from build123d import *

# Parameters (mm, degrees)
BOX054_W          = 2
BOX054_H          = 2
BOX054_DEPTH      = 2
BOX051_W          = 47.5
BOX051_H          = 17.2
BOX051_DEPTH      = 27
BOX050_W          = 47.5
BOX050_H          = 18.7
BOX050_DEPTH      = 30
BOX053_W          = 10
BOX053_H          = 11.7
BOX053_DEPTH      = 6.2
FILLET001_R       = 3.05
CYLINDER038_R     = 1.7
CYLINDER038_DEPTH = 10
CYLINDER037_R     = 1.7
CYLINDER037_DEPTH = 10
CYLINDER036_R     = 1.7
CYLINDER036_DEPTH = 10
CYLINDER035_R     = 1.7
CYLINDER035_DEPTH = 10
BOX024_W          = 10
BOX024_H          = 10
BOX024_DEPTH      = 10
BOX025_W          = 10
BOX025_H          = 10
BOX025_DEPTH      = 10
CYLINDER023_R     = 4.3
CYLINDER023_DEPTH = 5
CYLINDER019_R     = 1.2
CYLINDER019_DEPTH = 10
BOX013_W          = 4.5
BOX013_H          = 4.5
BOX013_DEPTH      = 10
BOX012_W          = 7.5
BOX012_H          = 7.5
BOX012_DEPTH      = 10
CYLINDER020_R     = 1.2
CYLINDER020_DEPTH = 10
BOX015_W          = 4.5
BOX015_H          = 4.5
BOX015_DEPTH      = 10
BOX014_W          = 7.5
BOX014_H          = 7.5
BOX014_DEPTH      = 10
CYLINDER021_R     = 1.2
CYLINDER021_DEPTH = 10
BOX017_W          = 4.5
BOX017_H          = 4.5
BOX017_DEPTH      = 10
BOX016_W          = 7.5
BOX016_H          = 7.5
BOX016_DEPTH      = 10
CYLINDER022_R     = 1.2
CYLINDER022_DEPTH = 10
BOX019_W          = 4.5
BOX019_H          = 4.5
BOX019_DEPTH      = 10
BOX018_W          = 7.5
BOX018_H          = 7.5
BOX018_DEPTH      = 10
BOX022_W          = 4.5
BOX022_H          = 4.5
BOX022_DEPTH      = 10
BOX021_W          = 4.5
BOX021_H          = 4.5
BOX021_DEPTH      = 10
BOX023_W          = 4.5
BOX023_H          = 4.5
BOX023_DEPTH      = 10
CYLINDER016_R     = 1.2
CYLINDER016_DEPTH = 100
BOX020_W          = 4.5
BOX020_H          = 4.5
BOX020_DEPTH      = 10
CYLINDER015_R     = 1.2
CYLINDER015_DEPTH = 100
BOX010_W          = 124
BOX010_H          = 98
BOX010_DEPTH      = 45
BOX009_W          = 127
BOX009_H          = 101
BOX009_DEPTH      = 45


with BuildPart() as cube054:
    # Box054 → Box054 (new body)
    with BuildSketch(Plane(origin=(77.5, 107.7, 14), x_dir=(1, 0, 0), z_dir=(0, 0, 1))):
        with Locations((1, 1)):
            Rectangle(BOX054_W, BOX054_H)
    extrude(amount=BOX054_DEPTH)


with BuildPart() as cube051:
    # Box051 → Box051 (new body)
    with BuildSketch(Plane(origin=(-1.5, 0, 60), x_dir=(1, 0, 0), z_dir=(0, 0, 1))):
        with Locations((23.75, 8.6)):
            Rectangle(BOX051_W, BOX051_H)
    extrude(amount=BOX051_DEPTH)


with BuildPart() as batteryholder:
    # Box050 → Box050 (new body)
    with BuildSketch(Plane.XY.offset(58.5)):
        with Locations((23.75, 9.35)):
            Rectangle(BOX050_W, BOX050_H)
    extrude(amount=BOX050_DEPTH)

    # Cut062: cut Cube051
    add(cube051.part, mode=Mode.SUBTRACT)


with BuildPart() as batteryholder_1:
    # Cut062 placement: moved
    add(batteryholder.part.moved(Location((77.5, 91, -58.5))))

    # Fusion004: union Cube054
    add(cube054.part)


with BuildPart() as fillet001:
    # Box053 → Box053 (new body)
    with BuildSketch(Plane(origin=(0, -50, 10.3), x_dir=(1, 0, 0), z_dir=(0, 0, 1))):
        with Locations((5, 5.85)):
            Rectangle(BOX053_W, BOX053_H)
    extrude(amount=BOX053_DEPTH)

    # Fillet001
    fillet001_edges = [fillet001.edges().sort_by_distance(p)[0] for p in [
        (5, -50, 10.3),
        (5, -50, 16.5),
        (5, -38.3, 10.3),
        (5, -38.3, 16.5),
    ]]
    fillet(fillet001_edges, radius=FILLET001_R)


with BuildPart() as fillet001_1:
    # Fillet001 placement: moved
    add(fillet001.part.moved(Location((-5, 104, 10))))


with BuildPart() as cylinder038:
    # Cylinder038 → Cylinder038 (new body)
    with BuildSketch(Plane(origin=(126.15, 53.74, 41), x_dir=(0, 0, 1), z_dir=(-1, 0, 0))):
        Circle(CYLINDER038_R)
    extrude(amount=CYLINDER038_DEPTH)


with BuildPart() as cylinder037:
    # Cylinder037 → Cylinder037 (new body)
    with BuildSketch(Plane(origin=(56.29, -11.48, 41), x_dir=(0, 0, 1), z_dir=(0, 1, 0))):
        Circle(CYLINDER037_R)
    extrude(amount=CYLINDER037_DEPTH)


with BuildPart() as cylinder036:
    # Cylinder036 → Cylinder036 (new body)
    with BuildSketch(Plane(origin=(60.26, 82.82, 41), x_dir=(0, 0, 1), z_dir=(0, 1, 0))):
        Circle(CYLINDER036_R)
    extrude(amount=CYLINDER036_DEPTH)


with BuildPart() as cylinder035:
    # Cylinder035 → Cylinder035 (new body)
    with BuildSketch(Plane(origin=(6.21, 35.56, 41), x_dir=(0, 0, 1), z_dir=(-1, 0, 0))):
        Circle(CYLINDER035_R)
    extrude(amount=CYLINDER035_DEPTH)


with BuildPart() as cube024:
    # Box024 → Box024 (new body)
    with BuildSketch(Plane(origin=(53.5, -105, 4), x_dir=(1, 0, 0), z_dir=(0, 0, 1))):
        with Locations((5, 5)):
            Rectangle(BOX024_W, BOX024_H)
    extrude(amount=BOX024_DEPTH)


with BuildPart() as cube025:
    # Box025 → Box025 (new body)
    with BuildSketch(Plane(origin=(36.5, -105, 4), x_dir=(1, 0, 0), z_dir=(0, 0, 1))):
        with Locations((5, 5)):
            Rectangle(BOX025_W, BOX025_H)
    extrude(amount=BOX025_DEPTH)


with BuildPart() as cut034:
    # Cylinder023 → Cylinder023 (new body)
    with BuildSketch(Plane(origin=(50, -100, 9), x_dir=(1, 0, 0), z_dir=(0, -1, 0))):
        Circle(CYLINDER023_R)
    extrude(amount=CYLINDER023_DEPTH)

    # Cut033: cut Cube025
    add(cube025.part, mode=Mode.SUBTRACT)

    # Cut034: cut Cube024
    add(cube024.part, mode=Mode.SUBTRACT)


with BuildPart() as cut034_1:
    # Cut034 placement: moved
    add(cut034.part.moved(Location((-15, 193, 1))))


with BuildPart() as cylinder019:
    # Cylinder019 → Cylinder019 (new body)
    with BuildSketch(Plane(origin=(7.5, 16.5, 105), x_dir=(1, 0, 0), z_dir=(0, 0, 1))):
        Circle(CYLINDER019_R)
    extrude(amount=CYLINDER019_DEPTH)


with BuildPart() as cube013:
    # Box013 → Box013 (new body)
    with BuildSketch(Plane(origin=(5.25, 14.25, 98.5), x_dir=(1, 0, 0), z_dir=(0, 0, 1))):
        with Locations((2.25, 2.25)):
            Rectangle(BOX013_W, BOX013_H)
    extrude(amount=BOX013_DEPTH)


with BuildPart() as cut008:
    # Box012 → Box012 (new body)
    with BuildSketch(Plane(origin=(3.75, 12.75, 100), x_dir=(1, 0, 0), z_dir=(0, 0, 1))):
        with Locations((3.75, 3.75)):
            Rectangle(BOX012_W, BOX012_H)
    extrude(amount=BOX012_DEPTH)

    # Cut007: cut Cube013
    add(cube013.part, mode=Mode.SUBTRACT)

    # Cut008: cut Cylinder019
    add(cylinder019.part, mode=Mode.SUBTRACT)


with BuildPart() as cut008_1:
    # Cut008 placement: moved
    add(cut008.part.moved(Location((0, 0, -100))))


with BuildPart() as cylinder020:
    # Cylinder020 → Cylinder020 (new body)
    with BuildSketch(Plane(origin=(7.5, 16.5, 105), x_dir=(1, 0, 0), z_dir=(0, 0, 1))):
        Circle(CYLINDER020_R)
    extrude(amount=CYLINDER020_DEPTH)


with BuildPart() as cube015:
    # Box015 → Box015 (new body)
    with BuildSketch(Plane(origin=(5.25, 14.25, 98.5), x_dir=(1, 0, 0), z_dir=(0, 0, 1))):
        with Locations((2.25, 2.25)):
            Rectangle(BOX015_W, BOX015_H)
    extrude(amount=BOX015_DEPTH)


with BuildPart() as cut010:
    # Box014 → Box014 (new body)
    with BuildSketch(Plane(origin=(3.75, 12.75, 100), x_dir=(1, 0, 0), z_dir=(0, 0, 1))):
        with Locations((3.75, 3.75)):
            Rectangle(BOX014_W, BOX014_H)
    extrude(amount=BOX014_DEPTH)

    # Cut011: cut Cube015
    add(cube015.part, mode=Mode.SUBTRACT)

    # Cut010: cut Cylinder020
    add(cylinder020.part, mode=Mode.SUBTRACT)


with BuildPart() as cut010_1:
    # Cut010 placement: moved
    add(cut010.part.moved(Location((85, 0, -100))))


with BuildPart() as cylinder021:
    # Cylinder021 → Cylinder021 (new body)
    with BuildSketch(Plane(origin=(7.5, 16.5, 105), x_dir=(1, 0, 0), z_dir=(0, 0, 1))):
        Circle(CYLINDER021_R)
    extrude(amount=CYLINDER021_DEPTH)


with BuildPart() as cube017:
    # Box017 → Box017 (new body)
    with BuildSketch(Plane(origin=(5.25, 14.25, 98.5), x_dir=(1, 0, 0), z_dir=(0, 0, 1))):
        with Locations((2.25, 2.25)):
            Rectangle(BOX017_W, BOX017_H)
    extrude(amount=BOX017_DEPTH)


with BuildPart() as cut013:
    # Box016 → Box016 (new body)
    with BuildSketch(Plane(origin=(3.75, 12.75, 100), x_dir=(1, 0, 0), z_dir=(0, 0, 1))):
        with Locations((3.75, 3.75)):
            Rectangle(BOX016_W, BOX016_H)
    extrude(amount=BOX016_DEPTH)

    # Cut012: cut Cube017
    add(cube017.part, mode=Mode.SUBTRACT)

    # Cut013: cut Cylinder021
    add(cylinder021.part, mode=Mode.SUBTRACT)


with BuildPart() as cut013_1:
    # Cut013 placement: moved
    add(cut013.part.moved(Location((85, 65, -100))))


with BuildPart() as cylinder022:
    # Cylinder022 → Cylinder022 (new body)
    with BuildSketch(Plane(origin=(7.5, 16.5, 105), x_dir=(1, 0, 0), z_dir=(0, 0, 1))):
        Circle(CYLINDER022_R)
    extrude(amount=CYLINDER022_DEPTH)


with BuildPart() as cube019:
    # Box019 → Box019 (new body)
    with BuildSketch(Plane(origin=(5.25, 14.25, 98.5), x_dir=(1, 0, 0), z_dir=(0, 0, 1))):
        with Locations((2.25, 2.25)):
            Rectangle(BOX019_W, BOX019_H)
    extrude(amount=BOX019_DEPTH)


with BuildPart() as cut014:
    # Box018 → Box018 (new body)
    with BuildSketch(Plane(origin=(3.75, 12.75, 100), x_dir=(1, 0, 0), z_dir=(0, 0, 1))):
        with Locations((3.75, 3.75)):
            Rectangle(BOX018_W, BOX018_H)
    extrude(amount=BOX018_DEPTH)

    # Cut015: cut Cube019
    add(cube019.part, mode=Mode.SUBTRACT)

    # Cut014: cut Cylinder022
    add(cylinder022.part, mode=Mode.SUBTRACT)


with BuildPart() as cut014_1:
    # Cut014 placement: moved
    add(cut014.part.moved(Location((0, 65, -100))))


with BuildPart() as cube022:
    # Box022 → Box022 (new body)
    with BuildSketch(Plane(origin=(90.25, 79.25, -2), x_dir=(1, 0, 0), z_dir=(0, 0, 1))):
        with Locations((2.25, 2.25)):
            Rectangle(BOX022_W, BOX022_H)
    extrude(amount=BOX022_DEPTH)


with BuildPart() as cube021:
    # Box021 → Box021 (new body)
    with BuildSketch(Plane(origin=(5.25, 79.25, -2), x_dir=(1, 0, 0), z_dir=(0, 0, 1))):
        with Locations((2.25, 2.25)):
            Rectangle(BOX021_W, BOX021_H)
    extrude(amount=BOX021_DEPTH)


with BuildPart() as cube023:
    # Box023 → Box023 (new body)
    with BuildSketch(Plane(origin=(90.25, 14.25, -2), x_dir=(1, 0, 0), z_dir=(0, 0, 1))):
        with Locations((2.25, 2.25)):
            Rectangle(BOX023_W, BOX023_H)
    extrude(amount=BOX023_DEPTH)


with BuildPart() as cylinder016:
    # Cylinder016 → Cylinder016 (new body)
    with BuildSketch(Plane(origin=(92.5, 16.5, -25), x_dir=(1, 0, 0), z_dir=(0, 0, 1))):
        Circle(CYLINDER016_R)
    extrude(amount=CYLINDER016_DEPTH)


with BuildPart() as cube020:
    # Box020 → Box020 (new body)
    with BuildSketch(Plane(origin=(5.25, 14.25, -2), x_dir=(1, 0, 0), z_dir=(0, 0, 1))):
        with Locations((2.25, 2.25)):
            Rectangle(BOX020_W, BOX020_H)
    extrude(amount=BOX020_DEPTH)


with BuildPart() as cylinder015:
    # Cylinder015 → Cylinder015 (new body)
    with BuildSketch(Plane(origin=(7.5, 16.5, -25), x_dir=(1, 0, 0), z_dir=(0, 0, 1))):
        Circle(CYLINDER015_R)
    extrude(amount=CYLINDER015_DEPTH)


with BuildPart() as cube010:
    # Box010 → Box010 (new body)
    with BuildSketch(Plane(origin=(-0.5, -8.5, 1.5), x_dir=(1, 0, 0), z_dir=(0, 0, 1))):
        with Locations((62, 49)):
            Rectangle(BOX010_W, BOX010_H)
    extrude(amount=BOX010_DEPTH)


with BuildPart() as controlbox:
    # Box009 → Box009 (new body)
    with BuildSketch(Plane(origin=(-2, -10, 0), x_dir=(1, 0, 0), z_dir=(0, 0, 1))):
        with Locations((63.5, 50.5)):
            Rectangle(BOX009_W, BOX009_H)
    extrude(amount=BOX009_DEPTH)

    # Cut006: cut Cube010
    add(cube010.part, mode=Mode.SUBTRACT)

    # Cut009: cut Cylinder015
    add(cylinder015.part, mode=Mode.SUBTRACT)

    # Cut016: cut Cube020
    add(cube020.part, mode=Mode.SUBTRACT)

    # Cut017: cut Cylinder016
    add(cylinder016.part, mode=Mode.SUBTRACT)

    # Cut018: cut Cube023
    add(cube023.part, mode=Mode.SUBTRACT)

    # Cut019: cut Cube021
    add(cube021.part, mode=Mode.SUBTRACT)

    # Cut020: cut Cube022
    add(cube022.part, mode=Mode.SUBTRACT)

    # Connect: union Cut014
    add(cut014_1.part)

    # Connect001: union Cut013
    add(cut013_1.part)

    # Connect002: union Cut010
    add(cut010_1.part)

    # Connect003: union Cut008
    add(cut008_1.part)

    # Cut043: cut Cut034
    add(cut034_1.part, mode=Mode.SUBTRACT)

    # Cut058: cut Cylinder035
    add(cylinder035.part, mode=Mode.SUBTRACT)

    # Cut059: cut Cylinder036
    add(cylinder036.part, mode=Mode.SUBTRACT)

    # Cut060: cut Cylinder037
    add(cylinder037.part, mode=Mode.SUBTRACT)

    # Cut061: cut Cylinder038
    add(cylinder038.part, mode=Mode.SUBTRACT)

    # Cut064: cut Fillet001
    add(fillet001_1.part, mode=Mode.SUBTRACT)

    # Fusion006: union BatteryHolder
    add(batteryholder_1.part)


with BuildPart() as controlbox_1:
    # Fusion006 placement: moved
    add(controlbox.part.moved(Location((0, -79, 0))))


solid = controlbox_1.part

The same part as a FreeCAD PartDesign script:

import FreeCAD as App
import Part
import Sketcher

V = App.Vector
Q = App.Units.Quantity


def edges_at(feature, points):
    """Names of the edges that pass closest to the given points."""
    edges = feature.Shape.Edges
    near = lambda p: min(range(len(edges)), key=lambda i: edges[i].distToShape(Part.Vertex(*p))[0])
    return sorted({f"Edge{near(p) + 1}" for p in points})

doc = App.newDocument("Part")
body = doc.addObject("PartDesign::Body", "Body")

# Sketch on XY plane
sketch1 = body.newObject("Sketcher::SketchObject", "Sketch")
sketch1.AttachmentSupport = (doc.getObject("XY_Plane"), [""])
sketch1.MapMode = "FlatFace"
sketch1.AttachmentOffset = App.Placement(V(0, 0, 14), App.Rotation())
sketch1.addGeometry([
    Part.LineSegment(V(77.5, 109.7, 0), V(77.5, 107.7, 0)),
    Part.LineSegment(V(77.5, 107.7, 0), V(79.5, 107.7, 0)),
    Part.LineSegment(V(79.5, 107.7, 0), V(79.5, 109.7, 0)),
    Part.LineSegment(V(79.5, 109.7, 0), V(77.5, 109.7, 0)),
], False)
sketch1.addConstraint([
    Sketcher.Constraint("Coincident", 0, 2, 1, 1),
    Sketcher.Constraint("Coincident", 1, 2, 2, 1),
    Sketcher.Constraint("Coincident", 2, 2, 3, 1),
    Sketcher.Constraint("Coincident", 3, 2, 0, 1),
    Sketcher.Constraint("Vertical", 0),
    Sketcher.Constraint("Horizontal", 1),
    Sketcher.Constraint("Vertical", 2),
    Sketcher.Constraint("Horizontal", 3),
    Sketcher.Constraint("Equal", 3, 0),
    Sketcher.Constraint("DistanceX", 1, 1, 1, 2, Q("2 mm")),
    Sketcher.Constraint("DistanceX", -1, 1, 0, 2, Q("77.5 mm")),
    Sketcher.Constraint("DistanceY", -1, 1, 0, 2, Q("107.7 mm")),
])
pad1 = body.newObject("PartDesign::Pad", "Pad")
pad1.Profile = sketch1
pad1.Length = 2
body2 = doc.addObject("PartDesign::Body", "Body001")

# Sketch on XY plane
sketch2 = body2.newObject("Sketcher::SketchObject", "Sketch001")
sketch2.AttachmentSupport = (doc.getObject("XY_Plane001"), [""])
sketch2.MapMode = "FlatFace"
sketch2.AttachmentOffset = App.Placement(V(0, 0, 60), App.Rotation())
sketch2.addGeometry([
    Part.LineSegment(V(-1.5, 17.2, 0), V(-1.5, 0, 0)),
    Part.LineSegment(V(-1.5, 0, 0), V(46, 0, 0)),
    Part.LineSegment(V(46, 0, 0), V(46, 17.2, 0)),
    Part.LineSegment(V(46, 17.2, 0), V(-1.5, 17.2, 0)),
], False)
sketch2.addConstraint([
    Sketcher.Constraint("Coincident", 0, 2, 1, 1),
    Sketcher.Constraint("Coincident", 1, 2, 2, 1),
    Sketcher.Constraint("Coincident", 2, 2, 3, 1),
    Sketcher.Constraint("Coincident", 3, 2, 0, 1),
    Sketcher.Constraint("Vertical", 0),
    Sketcher.Constraint("Horizontal", 1),
    Sketcher.Constraint("Vertical", 2),
    Sketcher.Constraint("Horizontal", 3),
    Sketcher.Constraint("PointOnObject", 0, 2, -1),
    Sketcher.Constraint("DistanceX", 1, 1, 1, 2, Q("47.5 mm")),
    Sketcher.Constraint("DistanceY", 0, 2, 0, 1, Q("17.2 mm")),
    Sketcher.Constraint("DistanceX", -1, 1, 1, 2, Q("46 mm")),
])
pad2 = body2.newObject("PartDesign::Pad", "Pad001")
pad2.Profile = sketch2
pad2.Length = 27
body3 = doc.addObject("PartDesign::Body", "Body002")

# Sketch on XY plane
sketch3 = body3.newObject("Sketcher::SketchObject", "Sketch002")
sketch3.AttachmentSupport = (doc.getObject("XY_Plane002"), [""])
sketch3.MapMode = "FlatFace"
sketch3.AttachmentOffset = App.Placement(V(0, 0, 58.5), App.Rotation())
sketch3.addGeometry([
    Part.LineSegment(V(0, 18.7, 0), V(0, 0, 0)),
    Part.LineSegment(V(0, 0, 0), V(47.5, 0, 0)),
    Part.LineSegment(V(47.5, 0, 0), V(47.5, 18.7, 0)),
    Part.LineSegment(V(47.5, 18.7, 0), V(0, 18.7, 0)),
], False)
sketch3.addConstraint([
    Sketcher.Constraint("Coincident", 0, 2, 1, 1),
    Sketcher.Constraint("Coincident", 1, 2, 2, 1),
    Sketcher.Constraint("Coincident", 2, 2, 3, 1),
    Sketcher.Constraint("Coincident", 3, 2, 0, 1),
    Sketcher.Constraint("Vertical", 0),
    Sketcher.Constraint("Horizontal", 1),
    Sketcher.Constraint("Vertical", 2),
    Sketcher.Constraint("Horizontal", 3),
    Sketcher.Constraint("Coincident", 0, 2, -1, 1),
    Sketcher.Constraint("DistanceX", 1, 1, 1, 2, Q("47.5 mm")),
    Sketcher.Constraint("DistanceY", 0, 2, 0, 1, Q("18.7 mm")),
])
pad3 = body3.newObject("PartDesign::Pad", "Pad002")
pad3.Profile = sketch3
pad3.Length = 30
doc.recompute()

boolean = body3.newObject("PartDesign::Boolean", "Boolean")
boolean.Type = "Cut"
boolean.addObjects([body2])
body4 = doc.addObject("PartDesign::Body", "Body003")
doc.recompute()

body3.Placement = App.Placement(V(77.5, 91, -58.5), App.Rotation(V(0, 0, 1), 0))
boolean2 = body4.newObject("PartDesign::Boolean", "Boolean001")
boolean2.Type = "Fuse"
boolean2.addObjects([body3])
doc.recompute()

boolean3 = body4.newObject("PartDesign::Boolean", "Boolean002")
boolean3.Type = "Fuse"
boolean3.addObjects([body])
body5 = doc.addObject("PartDesign::Body", "Body004")

# Sketch on XY plane
sketch4 = body5.newObject("Sketcher::SketchObject", "Sketch003")
sketch4.AttachmentSupport = (doc.getObject("XY_Plane004"), [""])
sketch4.MapMode = "FlatFace"
sketch4.AttachmentOffset = App.Placement(V(0, 0, 10.3), App.Rotation())
sketch4.addGeometry([
    Part.LineSegment(V(0, -38.3, 0), V(0, -50, 0)),
    Part.LineSegment(V(0, -50, 0), V(10, -50, 0)),
    Part.LineSegment(V(10, -50, 0), V(10, -38.3, 0)),
    Part.LineSegment(V(10, -38.3, 0), V(0, -38.3, 0)),
], False)
sketch4.addConstraint([
    Sketcher.Constraint("Coincident", 0, 2, 1, 1),
    Sketcher.Constraint("Coincident", 1, 2, 2, 1),
    Sketcher.Constraint("Coincident", 2, 2, 3, 1),
    Sketcher.Constraint("Coincident", 3, 2, 0, 1),
    Sketcher.Constraint("Vertical", 0),
    Sketcher.Constraint("Horizontal", 1),
    Sketcher.Constraint("Vertical", 2),
    Sketcher.Constraint("Horizontal", 3),
    Sketcher.Constraint("PointOnObject", 0, 2, -2),
    Sketcher.Constraint("DistanceX", 1, 1, 1, 2, Q("10 mm")),
    Sketcher.Constraint("DistanceY", 0, 2, 0, 1, Q("11.7 mm")),
    Sketcher.Constraint("DistanceY", 0, 2, -1, 1, Q("50 mm")),
])
pad4 = body5.newObject("PartDesign::Pad", "Pad003")
pad4.Profile = sketch4
pad4.Length = 6.2
doc.recompute()

fillet = body5.newObject("PartDesign::Fillet", "Fillet")
fillet.Base = (pad4, edges_at(pad4, [
    (5, -50, 10.3),
    (5, -50, 16.5),
    (5, -38.3, 10.3),
    (5, -38.3, 16.5),
]))
fillet.Radius = 3.05
body6 = doc.addObject("PartDesign::Body", "Body005")
doc.recompute()

body5.Placement = App.Placement(V(-5, 104, 10), App.Rotation(V(0, 0, 1), 0))
boolean4 = body6.newObject("PartDesign::Boolean", "Boolean003")
boolean4.Type = "Fuse"
boolean4.addObjects([body5])
body7 = doc.addObject("PartDesign::Body", "Body006")

# Sketch on YZ plane
sketch5 = body7.newObject("Sketcher::SketchObject", "Sketch004")
sketch5.AttachmentSupport = (doc.getObject("YZ_Plane006"), [""])
sketch5.MapMode = "FlatFace"
sketch5.AttachmentOffset = App.Placement(V(0, 0, 126.15), App.Rotation())
sketch5.addGeometry(Part.Circle(V(53.74, 41, 0), V(0, 0, 1), 1.7), False)
sketch5.addConstraint([
    Sketcher.Constraint("Diameter", 0, Q("3.4 mm")),
    Sketcher.Constraint("DistanceY", -1, 1, 0, 3, Q("41 mm")),
    Sketcher.Constraint("DistanceX", -1, 1, 0, 3, Q("53.74 mm")),
])
pad5 = body7.newObject("PartDesign::Pad", "Pad004")
pad5.Profile = sketch5
pad5.Length = 10
pad5.Reversed = True
body8 = doc.addObject("PartDesign::Body", "Body007")

# Sketch on XZ plane
sketch6 = body8.newObject("Sketcher::SketchObject", "Sketch005")
sketch6.AttachmentSupport = (doc.getObject("XZ_Plane007"), [""])
sketch6.MapMode = "FlatFace"
sketch6.AttachmentOffset = App.Placement(V(0, 0, 11.48), App.Rotation())
sketch6.addGeometry(Part.Circle(V(56.29, 41, 0), V(0, 0, 1), 1.7), False)
sketch6.addConstraint([
    Sketcher.Constraint("Diameter", 0, Q("3.4 mm")),
    Sketcher.Constraint("DistanceY", -1, 1, 0, 3, Q("41 mm")),
    Sketcher.Constraint("DistanceX", -1, 1, 0, 3, Q("56.29 mm")),
])
pad6 = body8.newObject("PartDesign::Pad", "Pad005")
pad6.Profile = sketch6
pad6.Length = 10
pad6.Reversed = True
body9 = doc.addObject("PartDesign::Body", "Body008")

# Sketch on XZ plane
sketch7 = body9.newObject("Sketcher::SketchObject", "Sketch006")
sketch7.AttachmentSupport = (doc.getObject("XZ_Plane008"), [""])
sketch7.MapMode = "FlatFace"
sketch7.AttachmentOffset = App.Placement(V(0, 0, -82.82), App.Rotation())
sketch7.addGeometry(Part.Circle(V(60.26, 41, 0), V(0, 0, 1), 1.7), False)
sketch7.addConstraint([
    Sketcher.Constraint("Diameter", 0, Q("3.4 mm")),
    Sketcher.Constraint("DistanceY", -1, 1, 0, 3, Q("41 mm")),
    Sketcher.Constraint("DistanceX", -1, 1, 0, 3, Q("60.26 mm")),
])
pad7 = body9.newObject("PartDesign::Pad", "Pad006")
pad7.Profile = sketch7
pad7.Length = 10
pad7.Reversed = True
body10 = doc.addObject("PartDesign::Body", "Body009")

# Sketch on YZ plane
sketch8 = body10.newObject("Sketcher::SketchObject", "Sketch007")
sketch8.AttachmentSupport = (doc.getObject("YZ_Plane009"), [""])
sketch8.MapMode = "FlatFace"
sketch8.AttachmentOffset = App.Placement(V(0, 0, 6.21), App.Rotation())
sketch8.addGeometry(Part.Circle(V(35.56, 41, 0), V(0, 0, 1), 1.7), False)
sketch8.addConstraint([
    Sketcher.Constraint("Diameter", 0, Q("3.4 mm")),
    Sketcher.Constraint("DistanceY", -1, 1, 0, 3, Q("41 mm")),
    Sketcher.Constraint("DistanceX", -1, 1, 0, 3, Q("35.56 mm")),
])
pad8 = body10.newObject("PartDesign::Pad", "Pad007")
pad8.Profile = sketch8
pad8.Length = 10
pad8.Reversed = True
body11 = doc.addObject("PartDesign::Body", "Body010")

# Sketch on XY plane
sketch9 = body11.newObject("Sketcher::SketchObject", "Sketch008")
sketch9.AttachmentSupport = (doc.getObject("XY_Plane010"), [""])
sketch9.MapMode = "FlatFace"
sketch9.AttachmentOffset = App.Placement(V(0, 0, 4), App.Rotation())
sketch9.addGeometry([
    Part.LineSegment(V(53.5, -95, 0), V(53.5, -105, 0)),
    Part.LineSegment(V(53.5, -105, 0), V(63.5, -105, 0)),
    Part.LineSegment(V(63.5, -105, 0), V(63.5, -95, 0)),
    Part.LineSegment(V(63.5, -95, 0), V(53.5, -95, 0)),
], False)
sketch9.addConstraint([
    Sketcher.Constraint("Coincident", 0, 2, 1, 1),
    Sketcher.Constraint("Coincident", 1, 2, 2, 1),
    Sketcher.Constraint("Coincident", 2, 2, 3, 1),
    Sketcher.Constraint("Coincident", 3, 2, 0, 1),
    Sketcher.Constraint("Vertical", 0),
    Sketcher.Constraint("Horizontal", 1),
    Sketcher.Constraint("Vertical", 2),
    Sketcher.Constraint("Horizontal", 3),
    Sketcher.Constraint("Equal", 3, 0),
    Sketcher.Constraint("DistanceX", 1, 1, 1, 2, Q("10 mm")),
    Sketcher.Constraint("DistanceY", 0, 2, -1, 1, Q("105 mm")),
    Sketcher.Constraint("DistanceX", -1, 1, 0, 2, Q("53.5 mm")),
])
pad9 = body11.newObject("PartDesign::Pad", "Pad008")
pad9.Profile = sketch9
pad9.Length = 10
body12 = doc.addObject("PartDesign::Body", "Body011")

# Sketch on XY plane
sketch10 = body12.newObject("Sketcher::SketchObject", "Sketch009")
sketch10.AttachmentSupport = (doc.getObject("XY_Plane011"), [""])
sketch10.MapMode = "FlatFace"
sketch10.AttachmentOffset = App.Placement(V(0, 0, 4), App.Rotation())
sketch10.addGeometry([
    Part.LineSegment(V(36.5, -95, 0), V(36.5, -105, 0)),
    Part.LineSegment(V(36.5, -105, 0), V(46.5, -105, 0)),
    Part.LineSegment(V(46.5, -105, 0), V(46.5, -95, 0)),
    Part.LineSegment(V(46.5, -95, 0), V(36.5, -95, 0)),
], False)
sketch10.addConstraint([
    Sketcher.Constraint("Coincident", 0, 2, 1, 1),
    Sketcher.Constraint("Coincident", 1, 2, 2, 1),
    Sketcher.Constraint("Coincident", 2, 2, 3, 1),
    Sketcher.Constraint("Coincident", 3, 2, 0, 1),
    Sketcher.Constraint("Vertical", 0),
    Sketcher.Constraint("Horizontal", 1),
    Sketcher.Constraint("Vertical", 2),
    Sketcher.Constraint("Horizontal", 3),
    Sketcher.Constraint("Equal", 3, 0),
    Sketcher.Constraint("DistanceX", 1, 1, 1, 2, Q("10 mm")),
    Sketcher.Constraint("DistanceY", 0, 2, -1, 1, Q("105 mm")),
    Sketcher.Constraint("DistanceX", -1, 1, 0, 2, Q("36.5 mm")),
])
pad10 = body12.newObject("PartDesign::Pad", "Pad009")
pad10.Profile = sketch10
pad10.Length = 10
body13 = doc.addObject("PartDesign::Body", "Body012")

# Sketch on XZ plane
sketch11 = body13.newObject("Sketcher::SketchObject", "Sketch010")
sketch11.AttachmentSupport = (doc.getObject("XZ_Plane012"), [""])
sketch11.MapMode = "FlatFace"
sketch11.AttachmentOffset = App.Placement(V(0, 0, 100), App.Rotation())
sketch11.addGeometry(Part.Circle(V(50, 9, 0), V(0, 0, 1), 4.3), False)
sketch11.addConstraint([
    Sketcher.Constraint("Diameter", 0, Q("8.6 mm")),
    Sketcher.Constraint("DistanceX", -1, 1, 0, 3, Q("50 mm")),
    Sketcher.Constraint("DistanceY", -1, 1, 0, 3, Q("9 mm")),
])
pad11 = body13.newObject("PartDesign::Pad", "Pad010")
pad11.Profile = sketch11
pad11.Length = 5
doc.recompute()

boolean5 = body13.newObject("PartDesign::Boolean", "Boolean004")
boolean5.Type = "Cut"
boolean5.addObjects([body12])
doc.recompute()

boolean6 = body13.newObject("PartDesign::Boolean", "Boolean005")
boolean6.Type = "Cut"
boolean6.addObjects([body11])
body14 = doc.addObject("PartDesign::Body", "Body013")
doc.recompute()

body13.Placement = App.Placement(V(-15, 193, 1), App.Rotation(V(0, 0, 1), 0))
boolean7 = body14.newObject("PartDesign::Boolean", "Boolean006")
boolean7.Type = "Fuse"
boolean7.addObjects([body13])
body15 = doc.addObject("PartDesign::Body", "Body014")

# Sketch on XY plane
sketch12 = body15.newObject("Sketcher::SketchObject", "Sketch011")
sketch12.AttachmentSupport = (doc.getObject("XY_Plane014"), [""])
sketch12.MapMode = "FlatFace"
sketch12.AttachmentOffset = App.Placement(V(0, 0, 105), App.Rotation())
sketch12.addGeometry(Part.Circle(V(7.5, 16.5, 0), V(0, 0, 1), 1.2), False)
sketch12.addConstraint([
    Sketcher.Constraint("Diameter", 0, Q("2.4 mm")),
    Sketcher.Constraint("DistanceX", -1, 1, 0, 3, Q("7.5 mm")),
    Sketcher.Constraint("DistanceY", -1, 1, 0, 3, Q("16.5 mm")),
])
pad12 = body15.newObject("PartDesign::Pad", "Pad011")
pad12.Profile = sketch12
pad12.Length = 10
body16 = doc.addObject("PartDesign::Body", "Body015")

# Sketch on XY plane
sketch13 = body16.newObject("Sketcher::SketchObject", "Sketch012")
sketch13.AttachmentSupport = (doc.getObject("XY_Plane015"), [""])
sketch13.MapMode = "FlatFace"
sketch13.AttachmentOffset = App.Placement(V(0, 0, 98.5), App.Rotation())
sketch13.addGeometry([
    Part.LineSegment(V(5.25, 18.75, 0), V(5.25, 14.25, 0)),
    Part.LineSegment(V(5.25, 14.25, 0), V(9.75, 14.25, 0)),
    Part.LineSegment(V(9.75, 14.25, 0), V(9.75, 18.75, 0)),
    Part.LineSegment(V(9.75, 18.75, 0), V(5.25, 18.75, 0)),
], False)
sketch13.addConstraint([
    Sketcher.Constraint("Coincident", 0, 2, 1, 1),
    Sketcher.Constraint("Coincident", 1, 2, 2, 1),
    Sketcher.Constraint("Coincident", 2, 2, 3, 1),
    Sketcher.Constraint("Coincident", 3, 2, 0, 1),
    Sketcher.Constraint("Vertical", 0),
    Sketcher.Constraint("Horizontal", 1),
    Sketcher.Constraint("Vertical", 2),
    Sketcher.Constraint("Horizontal", 3),
    Sketcher.Constraint("Equal", 3, 0),
    Sketcher.Constraint("DistanceX", 1, 1, 1, 2, Q("4.5 mm")),
    Sketcher.Constraint("DistanceX", -1, 1, 0, 2, Q("5.25 mm")),
    Sketcher.Constraint("DistanceY", -1, 1, 0, 2, Q("14.25 mm")),
])
pad13 = body16.newObject("PartDesign::Pad", "Pad012")
pad13.Profile = sketch13
pad13.Length = 10
body17 = doc.addObject("PartDesign::Body", "Body016")

# Sketch on XY plane
sketch14 = body17.newObject("Sketcher::SketchObject", "Sketch013")
sketch14.AttachmentSupport = (doc.getObject("XY_Plane016"), [""])
sketch14.MapMode = "FlatFace"
sketch14.AttachmentOffset = App.Placement(V(0, 0, 100), App.Rotation())
sketch14.addGeometry([
    Part.LineSegment(V(3.75, 20.25, 0), V(3.75, 12.75, 0)),
    Part.LineSegment(V(3.75, 12.75, 0), V(11.25, 12.75, 0)),
    Part.LineSegment(V(11.25, 12.75, 0), V(11.25, 20.25, 0)),
    Part.LineSegment(V(11.25, 20.25, 0), V(3.75, 20.25, 0)),
], False)
sketch14.addConstraint([
    Sketcher.Constraint("Coincident", 0, 2, 1, 1),
    Sketcher.Constraint("Coincident", 1, 2, 2, 1),
    Sketcher.Constraint("Coincident", 2, 2, 3, 1),
    Sketcher.Constraint("Coincident", 3, 2, 0, 1),
    Sketcher.Constraint("Vertical", 0),
    Sketcher.Constraint("Horizontal", 1),
    Sketcher.Constraint("Vertical", 2),
    Sketcher.Constraint("Horizontal", 3),
    Sketcher.Constraint("Equal", 3, 0),
    Sketcher.Constraint("DistanceX", 1, 1, 1, 2, Q("7.5 mm")),
    Sketcher.Constraint("DistanceX", -1, 1, 0, 2, Q("3.75 mm")),
    Sketcher.Constraint("DistanceY", -1, 1, 0, 2, Q("12.75 mm")),
])
pad14 = body17.newObject("PartDesign::Pad", "Pad013")
pad14.Profile = sketch14
pad14.Length = 10
doc.recompute()

boolean8 = body17.newObject("PartDesign::Boolean", "Boolean007")
boolean8.Type = "Cut"
boolean8.addObjects([body16])
doc.recompute()

boolean9 = body17.newObject("PartDesign::Boolean", "Boolean008")
boolean9.Type = "Cut"
boolean9.addObjects([body15])
body18 = doc.addObject("PartDesign::Body", "Body017")
doc.recompute()

body17.Placement = App.Placement(V(0, 0, -100), App.Rotation(V(0, 0, 1), 0))
boolean10 = body18.newObject("PartDesign::Boolean", "Boolean009")
boolean10.Type = "Fuse"
boolean10.addObjects([body17])
body19 = doc.addObject("PartDesign::Body", "Body018")

# Sketch on XY plane
sketch15 = body19.newObject("Sketcher::SketchObject", "Sketch014")
sketch15.AttachmentSupport = (doc.getObject("XY_Plane018"), [""])
sketch15.MapMode = "FlatFace"
sketch15.AttachmentOffset = App.Placement(V(0, 0, 105), App.Rotation())
sketch15.addGeometry(Part.Circle(V(7.5, 16.5, 0), V(0, 0, 1), 1.2), False)
sketch15.addConstraint([
    Sketcher.Constraint("Diameter", 0, Q("2.4 mm")),
    Sketcher.Constraint("DistanceX", -1, 1, 0, 3, Q("7.5 mm")),
    Sketcher.Constraint("DistanceY", -1, 1, 0, 3, Q("16.5 mm")),
])
pad15 = body19.newObject("PartDesign::Pad", "Pad014")
pad15.Profile = sketch15
pad15.Length = 10
body20 = doc.addObject("PartDesign::Body", "Body019")

# Sketch on XY plane
sketch16 = body20.newObject("Sketcher::SketchObject", "Sketch015")
sketch16.AttachmentSupport = (doc.getObject("XY_Plane019"), [""])
sketch16.MapMode = "FlatFace"
sketch16.AttachmentOffset = App.Placement(V(0, 0, 98.5), App.Rotation())
sketch16.addGeometry([
    Part.LineSegment(V(5.25, 18.75, 0), V(5.25, 14.25, 0)),
    Part.LineSegment(V(5.25, 14.25, 0), V(9.75, 14.25, 0)),
    Part.LineSegment(V(9.75, 14.25, 0), V(9.75, 18.75, 0)),
    Part.LineSegment(V(9.75, 18.75, 0), V(5.25, 18.75, 0)),
], False)
sketch16.addConstraint([
    Sketcher.Constraint("Coincident", 0, 2, 1, 1),
    Sketcher.Constraint("Coincident", 1, 2, 2, 1),
    Sketcher.Constraint("Coincident", 2, 2, 3, 1),
    Sketcher.Constraint("Coincident", 3, 2, 0, 1),
    Sketcher.Constraint("Vertical", 0),
    Sketcher.Constraint("Horizontal", 1),
    Sketcher.Constraint("Vertical", 2),
    Sketcher.Constraint("Horizontal", 3),
    Sketcher.Constraint("Equal", 3, 0),
    Sketcher.Constraint("DistanceX", 1, 1, 1, 2, Q("4.5 mm")),
    Sketcher.Constraint("DistanceX", -1, 1, 0, 2, Q("5.25 mm")),
    Sketcher.Constraint("DistanceY", -1, 1, 0, 2, Q("14.25 mm")),
])
pad16 = body20.newObject("PartDesign::Pad", "Pad015")
pad16.Profile = sketch16
pad16.Length = 10
body21 = doc.addObject("PartDesign::Body", "Body020")

# Sketch on XY plane
sketch17 = body21.newObject("Sketcher::SketchObject", "Sketch016")
sketch17.AttachmentSupport = (doc.getObject("XY_Plane020"), [""])
sketch17.MapMode = "FlatFace"
sketch17.AttachmentOffset = App.Placement(V(0, 0, 100), App.Rotation())
sketch17.addGeometry([
    Part.LineSegment(V(3.75, 20.25, 0), V(3.75, 12.75, 0)),
    Part.LineSegment(V(3.75, 12.75, 0), V(11.25, 12.75, 0)),
    Part.LineSegment(V(11.25, 12.75, 0), V(11.25, 20.25, 0)),
    Part.LineSegment(V(11.25, 20.25, 0), V(3.75, 20.25, 0)),
], False)
sketch17.addConstraint([
    Sketcher.Constraint("Coincident", 0, 2, 1, 1),
    Sketcher.Constraint("Coincident", 1, 2, 2, 1),
    Sketcher.Constraint("Coincident", 2, 2, 3, 1),
    Sketcher.Constraint("Coincident", 3, 2, 0, 1),
    Sketcher.Constraint("Vertical", 0),
    Sketcher.Constraint("Horizontal", 1),
    Sketcher.Constraint("Vertical", 2),
    Sketcher.Constraint("Horizontal", 3),
    Sketcher.Constraint("Equal", 3, 0),
    Sketcher.Constraint("DistanceX", 1, 1, 1, 2, Q("7.5 mm")),
    Sketcher.Constraint("DistanceX", -1, 1, 0, 2, Q("3.75 mm")),
    Sketcher.Constraint("DistanceY", -1, 1, 0, 2, Q("12.75 mm")),
])
pad17 = body21.newObject("PartDesign::Pad", "Pad016")
pad17.Profile = sketch17
pad17.Length = 10
doc.recompute()

boolean11 = body21.newObject("PartDesign::Boolean", "Boolean010")
boolean11.Type = "Cut"
boolean11.addObjects([body20])
doc.recompute()

boolean12 = body21.newObject("PartDesign::Boolean", "Boolean011")
boolean12.Type = "Cut"
boolean12.addObjects([body19])
body22 = doc.addObject("PartDesign::Body", "Body021")
doc.recompute()

body21.Placement = App.Placement(V(85, 0, -100), App.Rotation(V(0, 0, 1), 0))
boolean13 = body22.newObject("PartDesign::Boolean", "Boolean012")
boolean13.Type = "Fuse"
boolean13.addObjects([body21])
body23 = doc.addObject("PartDesign::Body", "Body022")

# Sketch on XY plane
sketch18 = body23.newObject("Sketcher::SketchObject", "Sketch017")
sketch18.AttachmentSupport = (doc.getObject("XY_Plane022"), [""])
sketch18.MapMode = "FlatFace"
sketch18.AttachmentOffset = App.Placement(V(0, 0, 105), App.Rotation())
sketch18.addGeometry(Part.Circle(V(7.5, 16.5, 0), V(0, 0, 1), 1.2), False)
sketch18.addConstraint([
    Sketcher.Constraint("Diameter", 0, Q("2.4 mm")),
    Sketcher.Constraint("DistanceX", -1, 1, 0, 3, Q("7.5 mm")),
    Sketcher.Constraint("DistanceY", -1, 1, 0, 3, Q("16.5 mm")),
])
pad18 = body23.newObject("PartDesign::Pad", "Pad017")
pad18.Profile = sketch18
pad18.Length = 10
body24 = doc.addObject("PartDesign::Body", "Body023")

# Sketch on XY plane
sketch19 = body24.newObject("Sketcher::SketchObject", "Sketch018")
sketch19.AttachmentSupport = (doc.getObject("XY_Plane023"), [""])
sketch19.MapMode = "FlatFace"
sketch19.AttachmentOffset = App.Placement(V(0, 0, 98.5), App.Rotation())
sketch19.addGeometry([
    Part.LineSegment(V(5.25, 18.75, 0), V(5.25, 14.25, 0)),
    Part.LineSegment(V(5.25, 14.25, 0), V(9.75, 14.25, 0)),
    Part.LineSegment(V(9.75, 14.25, 0), V(9.75, 18.75, 0)),
    Part.LineSegment(V(9.75, 18.75, 0), V(5.25, 18.75, 0)),
], False)
sketch19.addConstraint([
    Sketcher.Constraint("Coincident", 0, 2, 1, 1),
    Sketcher.Constraint("Coincident", 1, 2, 2, 1),
    Sketcher.Constraint("Coincident", 2, 2, 3, 1),
    Sketcher.Constraint("Coincident", 3, 2, 0, 1),
    Sketcher.Constraint("Vertical", 0),
    Sketcher.Constraint("Horizontal", 1),
    Sketcher.Constraint("Vertical", 2),
    Sketcher.Constraint("Horizontal", 3),
    Sketcher.Constraint("Equal", 3, 0),
    Sketcher.Constraint("DistanceX", 1, 1, 1, 2, Q("4.5 mm")),
    Sketcher.Constraint("DistanceX", -1, 1, 0, 2, Q("5.25 mm")),
    Sketcher.Constraint("DistanceY", -1, 1, 0, 2, Q("14.25 mm")),
])
pad19 = body24.newObject("PartDesign::Pad", "Pad018")
pad19.Profile = sketch19
pad19.Length = 10
body25 = doc.addObject("PartDesign::Body", "Body024")

# Sketch on XY plane
sketch20 = body25.newObject("Sketcher::SketchObject", "Sketch019")
sketch20.AttachmentSupport = (doc.getObject("XY_Plane024"), [""])
sketch20.MapMode = "FlatFace"
sketch20.AttachmentOffset = App.Placement(V(0, 0, 100), App.Rotation())
sketch20.addGeometry([
    Part.LineSegment(V(3.75, 20.25, 0), V(3.75, 12.75, 0)),
    Part.LineSegment(V(3.75, 12.75, 0), V(11.25, 12.75, 0)),
    Part.LineSegment(V(11.25, 12.75, 0), V(11.25, 20.25, 0)),
    Part.LineSegment(V(11.25, 20.25, 0), V(3.75, 20.25, 0)),
], False)
sketch20.addConstraint([
    Sketcher.Constraint("Coincident", 0, 2, 1, 1),
    Sketcher.Constraint("Coincident", 1, 2, 2, 1),
    Sketcher.Constraint("Coincident", 2, 2, 3, 1),
    Sketcher.Constraint("Coincident", 3, 2, 0, 1),
    Sketcher.Constraint("Vertical", 0),
    Sketcher.Constraint("Horizontal", 1),
    Sketcher.Constraint("Vertical", 2),
    Sketcher.Constraint("Horizontal", 3),
    Sketcher.Constraint("Equal", 3, 0),
    Sketcher.Constraint("DistanceX", 1, 1, 1, 2, Q("7.5 mm")),
    Sketcher.Constraint("DistanceX", -1, 1, 0, 2, Q("3.75 mm")),
    Sketcher.Constraint("DistanceY", -1, 1, 0, 2, Q("12.75 mm")),
])
pad20 = body25.newObject("PartDesign::Pad", "Pad019")
pad20.Profile = sketch20
pad20.Length = 10
doc.recompute()

boolean14 = body25.newObject("PartDesign::Boolean", "Boolean013")
boolean14.Type = "Cut"
boolean14.addObjects([body24])
doc.recompute()

boolean15 = body25.newObject("PartDesign::Boolean", "Boolean014")
boolean15.Type = "Cut"
boolean15.addObjects([body23])
body26 = doc.addObject("PartDesign::Body", "Body025")
doc.recompute()

body25.Placement = App.Placement(V(85, 65, -100), App.Rotation(V(0, 0, 1), 0))
boolean16 = body26.newObject("PartDesign::Boolean", "Boolean015")
boolean16.Type = "Fuse"
boolean16.addObjects([body25])
body27 = doc.addObject("PartDesign::Body", "Body026")

# Sketch on XY plane
sketch21 = body27.newObject("Sketcher::SketchObject", "Sketch020")
sketch21.AttachmentSupport = (doc.getObject("XY_Plane026"), [""])
sketch21.MapMode = "FlatFace"
sketch21.AttachmentOffset = App.Placement(V(0, 0, 105), App.Rotation())
sketch21.addGeometry(Part.Circle(V(7.5, 16.5, 0), V(0, 0, 1), 1.2), False)
sketch21.addConstraint([
    Sketcher.Constraint("Diameter", 0, Q("2.4 mm")),
    Sketcher.Constraint("DistanceX", -1, 1, 0, 3, Q("7.5 mm")),
    Sketcher.Constraint("DistanceY", -1, 1, 0, 3, Q("16.5 mm")),
])
pad21 = body27.newObject("PartDesign::Pad", "Pad020")
pad21.Profile = sketch21
pad21.Length = 10
body28 = doc.addObject("PartDesign::Body", "Body027")

# Sketch on XY plane
sketch22 = body28.newObject("Sketcher::SketchObject", "Sketch021")
sketch22.AttachmentSupport = (doc.getObject("XY_Plane027"), [""])
sketch22.MapMode = "FlatFace"
sketch22.AttachmentOffset = App.Placement(V(0, 0, 98.5), App.Rotation())
sketch22.addGeometry([
    Part.LineSegment(V(5.25, 18.75, 0), V(5.25, 14.25, 0)),
    Part.LineSegment(V(5.25, 14.25, 0), V(9.75, 14.25, 0)),
    Part.LineSegment(V(9.75, 14.25, 0), V(9.75, 18.75, 0)),
    Part.LineSegment(V(9.75, 18.75, 0), V(5.25, 18.75, 0)),
], False)
sketch22.addConstraint([
    Sketcher.Constraint("Coincident", 0, 2, 1, 1),
    Sketcher.Constraint("Coincident", 1, 2, 2, 1),
    Sketcher.Constraint("Coincident", 2, 2, 3, 1),
    Sketcher.Constraint("Coincident", 3, 2, 0, 1),
    Sketcher.Constraint("Vertical", 0),
    Sketcher.Constraint("Horizontal", 1),
    Sketcher.Constraint("Vertical", 2),
    Sketcher.Constraint("Horizontal", 3),
    Sketcher.Constraint("Equal", 3, 0),
    Sketcher.Constraint("DistanceX", 1, 1, 1, 2, Q("4.5 mm")),
    Sketcher.Constraint("DistanceX", -1, 1, 0, 2, Q("5.25 mm")),
    Sketcher.Constraint("DistanceY", -1, 1, 0, 2, Q("14.25 mm")),
])
pad22 = body28.newObject("PartDesign::Pad", "Pad021")
pad22.Profile = sketch22
pad22.Length = 10
body29 = doc.addObject("PartDesign::Body", "Body028")

# Sketch on XY plane
sketch23 = body29.newObject("Sketcher::SketchObject", "Sketch022")
sketch23.AttachmentSupport = (doc.getObject("XY_Plane028"), [""])
sketch23.MapMode = "FlatFace"
sketch23.AttachmentOffset = App.Placement(V(0, 0, 100), App.Rotation())
sketch23.addGeometry([
    Part.LineSegment(V(3.75, 20.25, 0), V(3.75, 12.75, 0)),
    Part.LineSegment(V(3.75, 12.75, 0), V(11.25, 12.75, 0)),
    Part.LineSegment(V(11.25, 12.75, 0), V(11.25, 20.25, 0)),
    Part.LineSegment(V(11.25, 20.25, 0), V(3.75, 20.25, 0)),
], False)
sketch23.addConstraint([
    Sketcher.Constraint("Coincident", 0, 2, 1, 1),
    Sketcher.Constraint("Coincident", 1, 2, 2, 1),
    Sketcher.Constraint("Coincident", 2, 2, 3, 1),
    Sketcher.Constraint("Coincident", 3, 2, 0, 1),
    Sketcher.Constraint("Vertical", 0),
    Sketcher.Constraint("Horizontal", 1),
    Sketcher.Constraint("Vertical", 2),
    Sketcher.Constraint("Horizontal", 3),
    Sketcher.Constraint("Equal", 3, 0),
    Sketcher.Constraint("DistanceX", 1, 1, 1, 2, Q("7.5 mm")),
    Sketcher.Constraint("DistanceX", -1, 1, 0, 2, Q("3.75 mm")),
    Sketcher.Constraint("DistanceY", -1, 1, 0, 2, Q("12.75 mm")),
])
pad23 = body29.newObject("PartDesign::Pad", "Pad022")
pad23.Profile = sketch23
pad23.Length = 10
doc.recompute()

boolean17 = body29.newObject("PartDesign::Boolean", "Boolean016")
boolean17.Type = "Cut"
boolean17.addObjects([body28])
doc.recompute()

boolean18 = body29.newObject("PartDesign::Boolean", "Boolean017")
boolean18.Type = "Cut"
boolean18.addObjects([body27])
body30 = doc.addObject("PartDesign::Body", "Body029")
doc.recompute()

body29.Placement = App.Placement(V(0, 65, -100), App.Rotation(V(0, 0, 1), 0))
boolean19 = body30.newObject("PartDesign::Boolean", "Boolean018")
boolean19.Type = "Fuse"
boolean19.addObjects([body29])
body31 = doc.addObject("PartDesign::Body", "Body030")

# Sketch on XY plane
sketch24 = body31.newObject("Sketcher::SketchObject", "Sketch023")
sketch24.AttachmentSupport = (doc.getObject("XY_Plane030"), [""])
sketch24.MapMode = "FlatFace"
sketch24.AttachmentOffset = App.Placement(V(0, 0, -2), App.Rotation())
sketch24.addGeometry([
    Part.LineSegment(V(90.25, 83.75, 0), V(90.25, 79.25, 0)),
    Part.LineSegment(V(90.25, 79.25, 0), V(94.75, 79.25, 0)),
    Part.LineSegment(V(94.75, 79.25, 0), V(94.75, 83.75, 0)),
    Part.LineSegment(V(94.75, 83.75, 0), V(90.25, 83.75, 0)),
], False)
sketch24.addConstraint([
    Sketcher.Constraint("Coincident", 0, 2, 1, 1),
    Sketcher.Constraint("Coincident", 1, 2, 2, 1),
    Sketcher.Constraint("Coincident", 2, 2, 3, 1),
    Sketcher.Constraint("Coincident", 3, 2, 0, 1),
    Sketcher.Constraint("Vertical", 0),
    Sketcher.Constraint("Horizontal", 1),
    Sketcher.Constraint("Vertical", 2),
    Sketcher.Constraint("Horizontal", 3),
    Sketcher.Constraint("Equal", 3, 0),
    Sketcher.Constraint("DistanceX", 1, 1, 1, 2, Q("4.5 mm")),
    Sketcher.Constraint("DistanceX", -1, 1, 0, 2, Q("90.25 mm")),
    Sketcher.Constraint("DistanceY", -1, 1, 0, 2, Q("79.25 mm")),
])
pad24 = body31.newObject("PartDesign::Pad", "Pad023")
pad24.Profile = sketch24
pad24.Length = 10
body32 = doc.addObject("PartDesign::Body", "Body031")

# Sketch on XY plane
sketch25 = body32.newObject("Sketcher::SketchObject", "Sketch024")
sketch25.AttachmentSupport = (doc.getObject("XY_Plane031"), [""])
sketch25.MapMode = "FlatFace"
sketch25.AttachmentOffset = App.Placement(V(0, 0, -2), App.Rotation())
sketch25.addGeometry([
    Part.LineSegment(V(5.25, 83.75, 0), V(5.25, 79.25, 0)),
    Part.LineSegment(V(5.25, 79.25, 0), V(9.75, 79.25, 0)),
    Part.LineSegment(V(9.75, 79.25, 0), V(9.75, 83.75, 0)),
    Part.LineSegment(V(9.75, 83.75, 0), V(5.25, 83.75, 0)),
], False)
sketch25.addConstraint([
    Sketcher.Constraint("Coincident", 0, 2, 1, 1),
    Sketcher.Constraint("Coincident", 1, 2, 2, 1),
    Sketcher.Constraint("Coincident", 2, 2, 3, 1),
    Sketcher.Constraint("Coincident", 3, 2, 0, 1),
    Sketcher.Constraint("Vertical", 0),
    Sketcher.Constraint("Horizontal", 1),
    Sketcher.Constraint("Vertical", 2),
    Sketcher.Constraint("Horizontal", 3),
    Sketcher.Constraint("Equal", 3, 0),
    Sketcher.Constraint("DistanceX", 1, 1, 1, 2, Q("4.5 mm")),
    Sketcher.Constraint("DistanceX", -1, 1, 0, 2, Q("5.25 mm")),
    Sketcher.Constraint("DistanceY", -1, 1, 0, 2, Q("79.25 mm")),
])
pad25 = body32.newObject("PartDesign::Pad", "Pad024")
pad25.Profile = sketch25
pad25.Length = 10
body33 = doc.addObject("PartDesign::Body", "Body032")

# Sketch on XY plane
sketch26 = body33.newObject("Sketcher::SketchObject", "Sketch025")
sketch26.AttachmentSupport = (doc.getObject("XY_Plane032"), [""])
sketch26.MapMode = "FlatFace"
sketch26.AttachmentOffset = App.Placement(V(0, 0, -2), App.Rotation())
sketch26.addGeometry([
    Part.LineSegment(V(90.25, 18.75, 0), V(90.25, 14.25, 0)),
    Part.LineSegment(V(90.25, 14.25, 0), V(94.75, 14.25, 0)),
    Part.LineSegment(V(94.75, 14.25, 0), V(94.75, 18.75, 0)),
    Part.LineSegment(V(94.75, 18.75, 0), V(90.25, 18.75, 0)),
], False)
sketch26.addConstraint([
    Sketcher.Constraint("Coincident", 0, 2, 1, 1),
    Sketcher.Constraint("Coincident", 1, 2, 2, 1),
    Sketcher.Constraint("Coincident", 2, 2, 3, 1),
    Sketcher.Constraint("Coincident", 3, 2, 0, 1),
    Sketcher.Constraint("Vertical", 0),
    Sketcher.Constraint("Horizontal", 1),
    Sketcher.Constraint("Vertical", 2),
    Sketcher.Constraint("Horizontal", 3),
    Sketcher.Constraint("Equal", 3, 0),
    Sketcher.Constraint("DistanceX", 1, 1, 1, 2, Q("4.5 mm")),
    Sketcher.Constraint("DistanceX", -1, 1, 0, 2, Q("90.25 mm")),
    Sketcher.Constraint("DistanceY", -1, 1, 0, 2, Q("14.25 mm")),
])
pad26 = body33.newObject("PartDesign::Pad", "Pad025")
pad26.Profile = sketch26
pad26.Length = 10
body34 = doc.addObject("PartDesign::Body", "Body033")

# Sketch on XY plane
sketch27 = body34.newObject("Sketcher::SketchObject", "Sketch026")
sketch27.AttachmentSupport = (doc.getObject("XY_Plane033"), [""])
sketch27.MapMode = "FlatFace"
sketch27.AttachmentOffset = App.Placement(V(0, 0, -25), App.Rotation())
sketch27.addGeometry(Part.Circle(V(92.5, 16.5, 0), V(0, 0, 1), 1.2), False)
sketch27.addConstraint([
    Sketcher.Constraint("Diameter", 0, Q("2.4 mm")),
    Sketcher.Constraint("DistanceX", -1, 1, 0, 3, Q("92.5 mm")),
    Sketcher.Constraint("DistanceY", -1, 1, 0, 3, Q("16.5 mm")),
])
pad27 = body34.newObject("PartDesign::Pad", "Pad026")
pad27.Profile = sketch27
pad27.Length = 100
body35 = doc.addObject("PartDesign::Body", "Body034")

# Sketch on XY plane
sketch28 = body35.newObject("Sketcher::SketchObject", "Sketch027")
sketch28.AttachmentSupport = (doc.getObject("XY_Plane034"), [""])
sketch28.MapMode = "FlatFace"
sketch28.AttachmentOffset = App.Placement(V(0, 0, -2), App.Rotation())
sketch28.addGeometry([
    Part.LineSegment(V(5.25, 18.75, 0), V(5.25, 14.25, 0)),
    Part.LineSegment(V(5.25, 14.25, 0), V(9.75, 14.25, 0)),
    Part.LineSegment(V(9.75, 14.25, 0), V(9.75, 18.75, 0)),
    Part.LineSegment(V(9.75, 18.75, 0), V(5.25, 18.75, 0)),
], False)
sketch28.addConstraint([
    Sketcher.Constraint("Coincident", 0, 2, 1, 1),
    Sketcher.Constraint("Coincident", 1, 2, 2, 1),
    Sketcher.Constraint("Coincident", 2, 2, 3, 1),
    Sketcher.Constraint("Coincident", 3, 2, 0, 1),
    Sketcher.Constraint("Vertical", 0),
    Sketcher.Constraint("Horizontal", 1),
    Sketcher.Constraint("Vertical", 2),
    Sketcher.Constraint("Horizontal", 3),
    Sketcher.Constraint("Equal", 3, 0),
    Sketcher.Constraint("DistanceX", 1, 1, 1, 2, Q("4.5 mm")),
    Sketcher.Constraint("DistanceX", -1, 1, 0, 2, Q("5.25 mm")),
    Sketcher.Constraint("DistanceY", -1, 1, 0, 2, Q("14.25 mm")),
])
pad28 = body35.newObject("PartDesign::Pad", "Pad027")
pad28.Profile = sketch28
pad28.Length = 10
body36 = doc.addObject("PartDesign::Body", "Body035")

# Sketch on XY plane
sketch29 = body36.newObject("Sketcher::SketchObject", "Sketch028")
sketch29.AttachmentSupport = (doc.getObject("XY_Plane035"), [""])
sketch29.MapMode = "FlatFace"
sketch29.AttachmentOffset = App.Placement(V(0, 0, -25), App.Rotation())
sketch29.addGeometry(Part.Circle(V(7.5, 16.5, 0), V(0, 0, 1), 1.2), False)
sketch29.addConstraint([
    Sketcher.Constraint("Diameter", 0, Q("2.4 mm")),
    Sketcher.Constraint("DistanceX", -1, 1, 0, 3, Q("7.5 mm")),
    Sketcher.Constraint("DistanceY", -1, 1, 0, 3, Q("16.5 mm")),
])
pad29 = body36.newObject("PartDesign::Pad", "Pad028")
pad29.Profile = sketch29
pad29.Length = 100
body37 = doc.addObject("PartDesign::Body", "Body036")

# Sketch on XY plane
sketch30 = body37.newObject("Sketcher::SketchObject", "Sketch029")
sketch30.AttachmentSupport = (doc.getObject("XY_Plane036"), [""])
sketch30.MapMode = "FlatFace"
sketch30.AttachmentOffset = App.Placement(V(0, 0, 1.5), App.Rotation())
sketch30.addGeometry([
    Part.LineSegment(V(-0.5, 89.5, 0), V(-0.5, -8.5, 0)),
    Part.LineSegment(V(-0.5, -8.5, 0), V(123.5, -8.5, 0)),
    Part.LineSegment(V(123.5, -8.5, 0), V(123.5, 89.5, 0)),
    Part.LineSegment(V(123.5, 89.5, 0), V(-0.5, 89.5, 0)),
], False)
sketch30.addConstraint([
    Sketcher.Constraint("Coincident", 0, 2, 1, 1),
    Sketcher.Constraint("Coincident", 1, 2, 2, 1),
    Sketcher.Constraint("Coincident", 2, 2, 3, 1),
    Sketcher.Constraint("Coincident", 3, 2, 0, 1),
    Sketcher.Constraint("Vertical", 0),
    Sketcher.Constraint("Horizontal", 1),
    Sketcher.Constraint("Vertical", 2),
    Sketcher.Constraint("Horizontal", 3),
    Sketcher.Constraint("DistanceX", 1, 1, 1, 2, Q("124 mm")),
    Sketcher.Constraint("DistanceY", 0, 2, 0, 1, Q("98 mm")),
    Sketcher.Constraint("DistanceX", 0, 2, -1, 1, Q("0.5 mm")),
    Sketcher.Constraint("DistanceY", 0, 2, -1, 1, Q("8.5 mm")),
])
pad30 = body37.newObject("PartDesign::Pad", "Pad029")
pad30.Profile = sketch30
pad30.Length = 45
body38 = doc.addObject("PartDesign::Body", "Body037")

# Sketch on XY plane
sketch31 = body38.newObject("Sketcher::SketchObject", "Sketch030")
sketch31.AttachmentSupport = (doc.getObject("XY_Plane037"), [""])
sketch31.MapMode = "FlatFace"
sketch31.addGeometry([
    Part.LineSegment(V(-2, 91, 0), V(-2, -10, 0)),
    Part.LineSegment(V(-2, -10, 0), V(125, -10, 0)),
    Part.LineSegment(V(125, -10, 0), V(125, 91, 0)),
    Part.LineSegment(V(125, 91, 0), V(-2, 91, 0)),
], False)
sketch31.addConstraint([
    Sketcher.Constraint("Coincident", 0, 2, 1, 1),
    Sketcher.Constraint("Coincident", 1, 2, 2, 1),
    Sketcher.Constraint("Coincident", 2, 2, 3, 1),
    Sketcher.Constraint("Coincident", 3, 2, 0, 1),
    Sketcher.Constraint("Vertical", 0),
    Sketcher.Constraint("Horizontal", 1),
    Sketcher.Constraint("Vertical", 2),
    Sketcher.Constraint("Horizontal", 3),
    Sketcher.Constraint("DistanceX", 1, 1, 1, 2, Q("127 mm")),
    Sketcher.Constraint("DistanceY", 0, 2, 0, 1, Q("101 mm")),
    Sketcher.Constraint("DistanceX", 0, 2, -1, 1, Q("2 mm")),
    Sketcher.Constraint("DistanceY", 0, 2, -1, 1, Q("10 mm")),
])
pad31 = body38.newObject("PartDesign::Pad", "Pad030")
pad31.Profile = sketch31
pad31.Length = 45
doc.recompute()

boolean20 = body38.newObject("PartDesign::Boolean", "Boolean019")
boolean20.Type = "Cut"
boolean20.addObjects([body37])
doc.recompute()

boolean21 = body38.newObject("PartDesign::Boolean", "Boolean020")
boolean21.Type = "Cut"
boolean21.addObjects([body36])
doc.recompute()

boolean22 = body38.newObject("PartDesign::Boolean", "Boolean021")
boolean22.Type = "Cut"
boolean22.addObjects([body35])
doc.recompute()

boolean23 = body38.newObject("PartDesign::Boolean", "Boolean022")
boolean23.Type = "Cut"
boolean23.addObjects([body34])
doc.recompute()

boolean24 = body38.newObject("PartDesign::Boolean", "Boolean023")
boolean24.Type = "Cut"
boolean24.addObjects([body33])
doc.recompute()

boolean25 = body38.newObject("PartDesign::Boolean", "Boolean024")
boolean25.Type = "Cut"
boolean25.addObjects([body32])
doc.recompute()

boolean26 = body38.newObject("PartDesign::Boolean", "Boolean025")
boolean26.Type = "Cut"
boolean26.addObjects([body31])
doc.recompute()

boolean27 = body38.newObject("PartDesign::Boolean", "Boolean026")
boolean27.Type = "Fuse"
boolean27.addObjects([body30])
doc.recompute()

boolean28 = body38.newObject("PartDesign::Boolean", "Boolean027")
boolean28.Type = "Fuse"
boolean28.addObjects([body26])
doc.recompute()

boolean29 = body38.newObject("PartDesign::Boolean", "Boolean028")
boolean29.Type = "Fuse"
boolean29.addObjects([body22])
doc.recompute()

boolean30 = body38.newObject("PartDesign::Boolean", "Boolean029")
boolean30.Type = "Fuse"
boolean30.addObjects([body18])
doc.recompute()

boolean31 = body38.newObject("PartDesign::Boolean", "Boolean030")
boolean31.Type = "Cut"
boolean31.addObjects([body14])
doc.recompute()

boolean32 = body38.newObject("PartDesign::Boolean", "Boolean031")
boolean32.Type = "Cut"
boolean32.addObjects([body10])
doc.recompute()

boolean33 = body38.newObject("PartDesign::Boolean", "Boolean032")
boolean33.Type = "Cut"
boolean33.addObjects([body9])
doc.recompute()

boolean34 = body38.newObject("PartDesign::Boolean", "Boolean033")
boolean34.Type = "Cut"
boolean34.addObjects([body8])
doc.recompute()

boolean35 = body38.newObject("PartDesign::Boolean", "Boolean034")
boolean35.Type = "Cut"
boolean35.addObjects([body7])
doc.recompute()

boolean36 = body38.newObject("PartDesign::Boolean", "Boolean035")
boolean36.Type = "Cut"
boolean36.addObjects([body6])
doc.recompute()

boolean37 = body38.newObject("PartDesign::Boolean", "Boolean036")
boolean37.Type = "Fuse"
boolean37.addObjects([body4])
body39 = doc.addObject("PartDesign::Body", "Body038")
doc.recompute()

body38.Placement = App.Placement(V(0, -79, 0), App.Rotation(V(0, 0, 1), 0))
boolean38 = body39.newObject("PartDesign::Boolean", "Boolean037")
boolean38.Type = "Fuse"
boolean38.addObjects([body38])

doc.recompute()
